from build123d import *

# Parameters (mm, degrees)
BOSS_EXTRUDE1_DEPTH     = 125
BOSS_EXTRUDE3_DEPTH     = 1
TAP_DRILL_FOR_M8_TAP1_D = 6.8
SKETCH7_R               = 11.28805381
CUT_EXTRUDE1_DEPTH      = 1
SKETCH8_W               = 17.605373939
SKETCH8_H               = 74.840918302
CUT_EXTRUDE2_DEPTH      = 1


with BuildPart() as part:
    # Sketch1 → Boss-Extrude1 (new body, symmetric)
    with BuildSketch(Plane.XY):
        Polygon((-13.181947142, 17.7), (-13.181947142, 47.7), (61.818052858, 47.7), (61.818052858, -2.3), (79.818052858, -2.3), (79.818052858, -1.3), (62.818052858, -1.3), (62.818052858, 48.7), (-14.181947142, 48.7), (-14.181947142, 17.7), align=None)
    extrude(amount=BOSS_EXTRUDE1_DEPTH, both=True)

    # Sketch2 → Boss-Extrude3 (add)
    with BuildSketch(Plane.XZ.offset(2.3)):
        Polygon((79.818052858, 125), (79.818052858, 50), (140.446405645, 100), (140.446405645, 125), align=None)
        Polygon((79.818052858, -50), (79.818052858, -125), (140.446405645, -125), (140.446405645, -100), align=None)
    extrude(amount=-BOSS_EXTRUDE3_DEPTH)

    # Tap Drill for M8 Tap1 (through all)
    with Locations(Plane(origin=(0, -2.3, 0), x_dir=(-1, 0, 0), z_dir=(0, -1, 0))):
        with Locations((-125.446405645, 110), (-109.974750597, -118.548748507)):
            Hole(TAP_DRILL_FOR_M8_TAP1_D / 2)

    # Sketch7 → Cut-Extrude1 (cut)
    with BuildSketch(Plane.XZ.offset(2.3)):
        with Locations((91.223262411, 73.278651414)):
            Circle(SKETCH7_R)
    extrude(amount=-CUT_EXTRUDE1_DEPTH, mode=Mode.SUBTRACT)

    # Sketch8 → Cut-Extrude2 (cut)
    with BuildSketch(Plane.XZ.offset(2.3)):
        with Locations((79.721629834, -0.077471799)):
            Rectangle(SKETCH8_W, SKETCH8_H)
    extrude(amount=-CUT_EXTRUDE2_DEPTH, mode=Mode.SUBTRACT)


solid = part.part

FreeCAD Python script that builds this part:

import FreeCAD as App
import Part
import Sketcher
Q = App.Units.Quantity

doc = App.newDocument("Part")
params = doc.addObject("Spreadsheet::Sheet", "Params")
for row, (alias, value) in enumerate([
    ("sketch1_width", "75 mm"),
    ("sketch1_width2", "18 mm"),
    ("sketch1_width3", "17 mm"),
    ("sketch1_width4", "77 mm"),
    ("sketch1_height", "30 mm"),
    ("pad1_length", "250 mm"),
    ("sketch2_height", "75 mm"),
    ("sketch2_height2", "25 mm"),
    ("pad2_length", "1 mm"),
    ("sketch3_diameter", "6.8 mm"),
    ("hole_diameter", "6.8 mm"),
    ("pocket1_length", "1 mm"),
    ("pocket2_length", "1 mm"),
], start=1):
    params.set(f"A{row}", alias)
    params.set(f"B{row}", "=" + value)
    params.setAlias(f"B{row}", alias)

body = doc.addObject("PartDesign::Body", "Body")

# Sketch on XY plane
sketch1 = body.newObject("Sketcher::SketchObject", "Sketch")
sketch1.AttachmentSupport = (doc.getObject("XY_Plane"), [""])
sketch1.MapMode = "FlatFace"
sketch1.addGeometry(Part.LineSegment(App.Vector(-13.2, 17.7, 0), App.Vector(-13.2, 47.7, 0)), False)
sketch1.addGeometry(Part.LineSegment(App.Vector(-13.2, 47.7, 0), App.Vector(61.8, 47.7, 0)), False)
sketch1.addGeometry(Part.LineSegment(App.Vector(61.8, 47.7, 0), App.Vector(61.8, -2.3, 0)), False)
sketch1.addGeometry(Part.LineSegment(App.Vector(61.8, -2.3, 0), App.Vector(79.8, -2.3, 0)), False)
sketch1.addGeometry(Part.LineSegment(App.Vector(79.8, -2.3, 0), App.Vector(79.8, -1.3, 0)), False)
sketch1.addGeometry(Part.LineSegment(App.Vector(79.8, -1.3, 0), App.Vector(62.8, -1.3, 0)), False)
sketch1.addGeometry(Part.LineSegment(App.Vector(62.8, -1.3, 0), App.Vector(62.8, 48.7, 0)), False)
sketch1.addGeometry(Part.LineSegment(App.Vector(62.8, 48.7, 0), App.Vector(-14.2, 48.7, 0)), False)
sketch1.addGeometry(Part.LineSegment(App.Vector(-14.2, 48.7, 0), App.Vector(-14.2, 17.7, 0)), False)
sketch1.addGeometry(Part.LineSegment(App.Vector(-14.2, 17.7, 0), App.Vector(-13.2, 17.7, 0)), False)
sketch1.addConstraint(Sketcher.Constraint("Coincident", 0, 2, 1, 1))
sketch1.addConstraint(Sketcher.Constraint("Coincident", 1, 2, 2, 1))
sketch1.addConstraint(Sketcher.Constraint("Coincident", 2, 2, 3, 1))
sketch1.addConstraint(Sketcher.Constraint("Coincident", 3, 2, 4, 1))
sketch1.addConstraint(Sketcher.Constraint("Coincident", 4, 2, 5, 1))
sketch1.addConstraint(Sketcher.Constraint("Coincident", 5, 2, 6, 1))
sketch1.addConstraint(Sketcher.Constraint("Coincident", 6, 2, 7, 1))
sketch1.addConstraint(Sketcher.Constraint("Coincident", 7, 2, 8, 1))
sketch1.addConstraint(Sketcher.Constraint("Coincident", 8, 2, 9, 1))
sketch1.addConstraint(Sketcher.Constraint("Coincident", 9, 2, 0, 1))
sketch1.addConstraint(Sketcher.Constraint("Vertical", 0))
sketch1.addConstraint(Sketcher.Constraint("Horizontal", 1))
sketch1.addConstraint(Sketcher.Constraint("Vertical", 2))
sketch1.addConstraint(Sketcher.Constraint("Horizontal", 3))
sketch1.addConstraint(Sketcher.Constraint("Vertical", 4))
sketch1.addConstraint(Sketcher.Constraint("Horizontal", 5))
sketch1.addConstraint(Sketcher.Constraint("Vertical", 6))
sketch1.addConstraint(Sketcher.Constraint("Horizontal", 7))
sketch1.addConstraint(Sketcher.Constraint("Vertical", 8))
sketch1.addConstraint(Sketcher.Constraint("Horizontal", 9))
sketch1.addConstraint(Sketcher.Constraint("Equal", 9, 4))
sketch1.addConstraint(Sketcher.Constraint("Equal", 2, 6))
sketch1.addConstraint(Sketcher.Constraint("DistanceX", 1, 1, 1, 2, Q("75 mm")))
sketch1.addConstraint(Sketcher.Constraint("DistanceX", 3, 1, 3, 2, Q("18 mm")))
sketch1.addConstraint(Sketcher.Constraint("DistanceX", 5, 2, 5, 1, Q("17 mm")))
sketch1.addConstraint(Sketcher.Constraint("DistanceX", 7, 2, 7, 1, Q("77 mm")))
sketch1.addConstraint(Sketcher.Constraint("DistanceY", 0, 1, 0, 2, Q("30 mm")))
sketch1.addConstraint(Sketcher.Constraint("DistanceY", 2, 2, 2, 1, Q("50 mm")))
sketch1.addConstraint(Sketcher.Constraint("DistanceY", -1, 1, 0, 2, Q("47.7 mm")))
sketch1.addConstraint(Sketcher.Constraint("DistanceX", 0, 2, -1, 1, Q("13.181947 mm")))
sketch1.setExpression("Constraints[22]", "Params.sketch1_width")
sketch1.setExpression("Constraints[23]", "Params.sketch1_width2")
sketch1.setExpression("Constraints[24]", "Params.sketch1_width3")
sketch1.setExpression("Constraints[25]", "Params.sketch1_width4")
sketch1.setExpression("Constraints[26]", "Params.sketch1_height")
pad1 = body.newObject("PartDesign::Pad", "Pad")
pad1.Profile = sketch1
pad1.setExpression("Length", "Params.pad1_length")
pad1.Midplane = True

# Sketch on XZ plane
sketch2 = body.newObject("Sketcher::SketchObject", "Sketch001")
sketch2.AttachmentSupport = (doc.getObject("XZ_Plane"), [""])
sketch2.MapMode = "FlatFace"
sketch2.AttachmentOffset = App.Placement(App.Vector(0, 0, 2.3), App.Rotation())
sketch2.addGeometry(Part.LineSegment(App.Vector(80, 125, 0), App.Vector(80, 50, 0)), False)
sketch2.addGeometry(Part.LineSegment(App.Vector(80, 50, 0), App.Vector(140, 100, 0)), False)
sketch2.addGeometry(Part.LineSegment(App.Vector(140, 100, 0), App.Vector(140, 125, 0)), False)
sketch2.addGeometry(Part.LineSegment(App.Vector(140, 125, 0), App.Vector(80, 125, 0)), False)
sketch2.addGeometry(Part.LineSegment(App.Vector(80, -50, 0), App.Vector(80, -125, 0)), False)
sketch2.addGeometry(Part.LineSegment(App.Vector(80, -125, 0), App.Vector(140, -125, 0)), False)
sketch2.addGeometry(Part.LineSegment(App.Vector(140, -125, 0), App.Vector(140, -100, 0)), False)
sketch2.addGeometry(Part.LineSegment(App.Vector(140, -100, 0), App.Vector(80, -50, 0)), False)
sketch2.addConstraint(Sketcher.Constraint("Coincident", 0, 2, 1, 1))
sketch2.addConstraint(Sketcher.Constraint("Coincident", 1, 2, 2, 1))
sketch2.addConstraint(Sketcher.Constraint("Coincident", 2, 2, 3, 1))
sketch2.addConstraint(Sketcher.Constraint("Coincident", 3, 2, 0, 1))
sketch2.addConstraint(Sketcher.Constraint("Coincident", 4, 2, 5, 1))
sketch2.addConstraint(Sketcher.Constraint("Coincident", 5, 2, 6, 1))
sketch2.addConstraint(Sketcher.Constraint("Coincident", 6, 2, 7, 1))
sketch2.addConstraint(Sketcher.Constraint("Coincident", 7, 2, 4, 1))
sketch2.addConstraint(Sketcher.Constraint("Vertical", 0))
sketch2.addConstraint(Sketcher.Constraint("Vertical", 2))
sketch2.addConstraint(Sketcher.Constraint("Horizontal", 3))
sketch2.addConstraint(Sketcher.Constraint("Vertical", 4))
sketch2.addConstraint(Sketcher.Constraint("Horizontal", 5))
sketch2.addConstraint(Sketcher.Constraint("Vertical", 6))
sketch2.addConstraint(Sketcher.Constraint("Symmetric", 3, 2, 4, 2, -1))
sketch2.addConstraint(Sketcher.Constraint("Symmetric", 1, 2, 6, 2, -1))
sketch2.addConstraint(Sketcher.Constraint("Equal", 0, 4))
sketch2.addConstraint(Sketcher.Constraint("DistanceY", 0, 2, 0, 1, Q("75 mm")))
sketch2.addConstraint(Sketcher.Constraint("DistanceY", 2, 1, 2, 2, Q("25 mm")))
sketch2.addConstraint(Sketcher.Constraint("DistanceY", -1, 1, 0, 2, Q("50 mm")))
sketch2.addConstraint(Sketcher.Constraint("Distance", 1, Q("78.58624 mm")))
sketch2.addConstraint(Sketcher.Constraint("DistanceX", -1, 1, 0, 2, Q("79.818053 mm")))
sketch2.setExpression("Constraints[17]", "Params.sketch2_height")
sketch2.setExpression("Constraints[18]", "Params.sketch2_height2")
pad2 = body.newObject("PartDesign::Pad", "Pad001")
pad2.Profile = sketch2
pad2.setExpression("Length", "Params.pad2_length")
pad2.Reversed = True

# Sketch on XZ plane
sketch3 = body.newObject("Sketcher::SketchObject", "Sketch002")
sketch3.AttachmentSupport = (doc.getObject("XZ_Plane"), [""])
sketch3.MapMode = "FlatFace"
sketch3.AttachmentOffset = App.Placement(App.Vector(0, 0, 2.3), App.Rotation())
sketch3.addGeometry(Part.Circle(App.Vector(125.4, -110, 0), App.Vector(0, 0, 1), 3.4), False)
sketch3.addGeometry(Part.Circle(App.Vector(110, 118.5, 0), App.Vector(0, 0, 1), 3.4), False)
sketch3.addConstraint(Sketcher.Constraint("Equal", 0, 1))
sketch3.addConstraint(Sketcher.Constraint("Diameter", 0, Q("6.8 mm")))
sketch3.addConstraint(Sketcher.Constraint("DistanceY", 0, 3, -1, 1, Q("110 mm")))
sketch3.addConstraint(Sketcher.Constraint("DistanceX", -1, 1, 1, 3, Q("109.974751 mm")))
sketch3.addConstraint(Sketcher.Constraint("DistanceY", -1, 1, 1, 3, Q("118.548749 mm")))
sketch3.addConstraint(Sketcher.Constraint("DistanceX", -1, 1, 0, 3, Q("125.446406 mm")))
sketch3.setExpression("Constraints[1]", "Params.sketch3_diameter")
doc.recompute()
hole = body.newObject("PartDesign::Hole", "Hole")
hole.Profile = sketch3
hole.ThreadType = "None"
hole.setExpression("Diameter", "Params.hole_diameter")
hole.DepthType = "ThroughAll"

# Sketch on XZ plane
sketch4 = body.newObject("Sketcher::SketchObject", "Sketch003")
sketch4.AttachmentSupport = (doc.getObject("XZ_Plane"), [""])
sketch4.MapMode = "FlatFace"
sketch4.AttachmentOffset = App.Placement(App.Vector(0, 0, 2.3), App.Rotation())
sketch4.addGeometry(Part.Circle(App.Vector(91, 73, 0), App.Vector(0, 0, 1), 11), False)
sketch4.addConstraint(Sketcher.Constraint("Diameter", 0, Q("22.576108 mm")))
sketch4.addConstraint(Sketcher.Constraint("DistanceY", -1, 1, 0, 3, Q("73.278651 mm")))
sketch4.addConstraint(Sketcher.Constraint("DistanceX", -1, 1, 0, 3, Q("91.223262 mm")))
pocket1 = body.newObject("PartDesign::Pocket", "Pocket")
pocket1.Profile = sketch4
pocket1.setExpression("Length", "Params.pocket1_length")

# Sketch on XZ plane
sketch5 = body.newObject("Sketcher::SketchObject", "Sketch004")
sketch5.AttachmentSupport = (doc.getObject("XZ_Plane"), [""])
sketch5.MapMode = "FlatFace"
sketch5.AttachmentOffset = App.Placement(App.Vector(0, 0, 2.3), App.Rotation())
sketch5.addGeometry(Part.LineSegment(App.Vector(71, 37, 0), App.Vector(71, -37, 0)), False)
sketch5.addGeometry(Part.LineSegment(App.Vector(71, -37, 0), App.Vector(89, -37, 0)), False)
sketch5.addGeometry(Part.LineSegment(App.Vector(89, -37, 0), App.Vector(89, 37, 0)), False)
sketch5.addGeometry(Part.LineSegment(App.Vector(89, 37, 0), App.Vector(71, 37, 0)), False)
sketch5.addConstraint(Sketcher.Constraint("Coincident", 0, 2, 1, 1))
sketch5.addConstraint(Sketcher.Constraint("Coincident", 1, 2, 2, 1))
sketch5.addConstraint(Sketcher.Constraint("Coincident", 2, 2, 3, 1))
sketch5.addConstraint(Sketcher.Constraint("Coincident", 3, 2, 0, 1))
sketch5.addConstraint(Sketcher.Constraint("Vertical", 0))
sketch5.addConstraint(Sketcher.Constraint("Horizontal", 1))
sketch5.addConstraint(Sketcher.Constraint("Vertical", 2))
sketch5.addConstraint(Sketcher.Constraint("Horizontal", 3))
sketch5.addConstraint(Sketcher.Constraint("DistanceY", 0, 2, 0, 1, Q("74.840918 mm")))
sketch5.addConstraint(Sketcher.Constraint("DistanceX", 1, 1, 1, 2, Q("17.605374 mm")))
sketch5.addConstraint(Sketcher.Constraint("DistanceY", 0, 2, -1, 1, Q("37.497931 mm")))
sketch5.addConstraint(Sketcher.Constraint("DistanceX", -1, 1, 0, 2, Q("70.918943 mm")))
pocket2 = body.newObject("PartDesign::Pocket", "Pocket001")
pocket2.Profile = sketch5
pocket2.setExpression("Length", "Params.pocket2_length")

doc.recompute()
